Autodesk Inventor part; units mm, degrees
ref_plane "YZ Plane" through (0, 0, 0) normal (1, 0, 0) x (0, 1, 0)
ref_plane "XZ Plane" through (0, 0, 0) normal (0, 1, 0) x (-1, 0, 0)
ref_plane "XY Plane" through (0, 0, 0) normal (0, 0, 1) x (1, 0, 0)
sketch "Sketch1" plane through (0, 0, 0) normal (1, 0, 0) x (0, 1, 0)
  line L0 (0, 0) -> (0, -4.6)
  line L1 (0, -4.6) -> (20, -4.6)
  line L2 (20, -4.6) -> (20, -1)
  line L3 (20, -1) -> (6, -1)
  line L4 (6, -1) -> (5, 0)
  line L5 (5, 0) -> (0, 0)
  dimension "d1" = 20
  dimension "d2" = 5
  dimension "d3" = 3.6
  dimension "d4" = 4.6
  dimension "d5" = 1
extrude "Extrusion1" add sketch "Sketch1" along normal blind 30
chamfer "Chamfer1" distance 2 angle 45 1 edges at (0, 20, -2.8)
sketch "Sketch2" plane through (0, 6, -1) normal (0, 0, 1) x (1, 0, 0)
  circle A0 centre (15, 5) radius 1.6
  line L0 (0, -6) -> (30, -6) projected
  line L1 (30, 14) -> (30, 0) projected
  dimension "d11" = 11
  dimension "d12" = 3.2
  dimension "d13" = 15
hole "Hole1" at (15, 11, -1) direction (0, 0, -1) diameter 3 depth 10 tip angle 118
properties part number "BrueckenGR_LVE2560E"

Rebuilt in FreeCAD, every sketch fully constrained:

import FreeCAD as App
import Part
import Sketcher
from FreeCAD import Vector


def edges_at(feature, points):
    """Names of the edges that pass closest to the given points."""
    edges = feature.Shape.Edges
    near = lambda p: min(range(len(edges)), key=lambda i: edges[i].distToShape(Part.Vertex(*p))[0])
    return sorted({f"Edge{near(p) + 1}" for p in points})

doc = App.newDocument("Part")
body = doc.addObject("PartDesign::Body", "Body")

sketch1 = doc.addObject("Sketcher::SketchObject", "Sketch")
body.addObject(sketch1)
sketch1.AttachmentSupport = (doc.YZ_Plane, [""])
sketch1.MapMode = "FlatFace"
sketch1.addGeometry(Part.LineSegment(Vector(5, 0, 0), Vector(0, 0, 0)), False)
sketch1.addGeometry(Part.LineSegment(Vector(0, 0, 0), Vector(0, -4.6, 0)), False)
sketch1.addGeometry(Part.LineSegment(Vector(0, -4.6, 0), Vector(20, -4.6, 0)), False)
sketch1.addGeometry(Part.LineSegment(Vector(20, -4.6, 0), Vector(20, -1, 0)), False)
sketch1.addGeometry(Part.LineSegment(Vector(20, -1, 0), Vector(6, -1, 0)), False)
sketch1.addGeometry(Part.LineSegment(Vector(6, -1, 0), Vector(5, 0, 0)), False)
sketch1.addConstraint(Sketcher.Constraint("Coincident", 0, 2, 1, 1))
sketch1.addConstraint(Sketcher.Constraint("Coincident", 1, 2, 2, 1))
sketch1.addConstraint(Sketcher.Constraint("Coincident", 2, 2, 3, 1))
sketch1.addConstraint(Sketcher.Constraint("Coincident", 3, 2, 4, 1))
sketch1.addConstraint(Sketcher.Constraint("Coincident", 4, 2, 5, 1))
sketch1.addConstraint(Sketcher.Constraint("Coincident", 5, 2, 0, 1))
sketch1.addConstraint(Sketcher.Constraint("Horizontal", 0))
sketch1.addConstraint(Sketcher.Constraint("Vertical", 1))
sketch1.addConstraint(Sketcher.Constraint("Horizontal", 2))
sketch1.addConstraint(Sketcher.Constraint("Vertical", 3))
sketch1.addConstraint(Sketcher.Constraint("Horizontal", 4))
sketch1.addConstraint(Sketcher.Constraint("Coincident", 0, 2, -1, 1))
sketch1.addConstraint(Sketcher.Constraint("DistanceX", 0, 2, 0, 1, 5.0))
sketch1.addConstraint(Sketcher.Constraint("DistanceX", 2, 1, 2, 2, 20.0))
sketch1.addConstraint(Sketcher.Constraint("DistanceY", 1, 2, 1, 1, 4.6))
sketch1.addConstraint(Sketcher.Constraint("DistanceY", 3, 1, 3, 2, 3.6))
sketch1.addConstraint(Sketcher.Constraint("DistanceX", 5, 2, 4, 2, 1.0))
pad1 = doc.addObject("PartDesign::Pad", "Pad")
body.addObject(pad1)
pad1.Profile = sketch1
pad1.Length = 30
doc.recompute()

chamfer = doc.addObject("PartDesign::Chamfer", "Chamfer")
body.addObject(chamfer)
chamfer.Base = (pad1, edges_at(pad1, [(0, 20, -2.8)]))
chamfer.Size = 2

sketch2 = doc.addObject("Sketcher::SketchObject", "Sketch001")
body.addObject(sketch2)
sketch2.AttachmentSupport = (doc.XY_Plane, [""])
sketch2.MapMode = "FlatFace"
sketch2.AttachmentOffset = App.Placement(Vector(0, 0, -1), App.Rotation())
sketch2.addGeometry(Part.Circle(Vector(15, 11, 0), Vector(0, 0, 1), 1.5), False)
sketch2.addConstraint(Sketcher.Constraint("Diameter", 0, 3.0))
sketch2.addConstraint(Sketcher.Constraint("DistanceX", -1, 1, 0, 3, 15.0))
sketch2.addConstraint(Sketcher.Constraint("DistanceY", -1, 1, 0, 3, 11.0))
doc.recompute()
hole = doc.addObject("PartDesign::Hole", "Hole")
body.addObject(hole)
hole.Profile = sketch2
hole.ThreadType = "None"
hole.Diameter = 3
hole.DepthType = "Dimension"
hole.Depth = 10
hole.DrillPoint = "Angled"
hole.DrillPointAngle = 118

doc.recompute()
